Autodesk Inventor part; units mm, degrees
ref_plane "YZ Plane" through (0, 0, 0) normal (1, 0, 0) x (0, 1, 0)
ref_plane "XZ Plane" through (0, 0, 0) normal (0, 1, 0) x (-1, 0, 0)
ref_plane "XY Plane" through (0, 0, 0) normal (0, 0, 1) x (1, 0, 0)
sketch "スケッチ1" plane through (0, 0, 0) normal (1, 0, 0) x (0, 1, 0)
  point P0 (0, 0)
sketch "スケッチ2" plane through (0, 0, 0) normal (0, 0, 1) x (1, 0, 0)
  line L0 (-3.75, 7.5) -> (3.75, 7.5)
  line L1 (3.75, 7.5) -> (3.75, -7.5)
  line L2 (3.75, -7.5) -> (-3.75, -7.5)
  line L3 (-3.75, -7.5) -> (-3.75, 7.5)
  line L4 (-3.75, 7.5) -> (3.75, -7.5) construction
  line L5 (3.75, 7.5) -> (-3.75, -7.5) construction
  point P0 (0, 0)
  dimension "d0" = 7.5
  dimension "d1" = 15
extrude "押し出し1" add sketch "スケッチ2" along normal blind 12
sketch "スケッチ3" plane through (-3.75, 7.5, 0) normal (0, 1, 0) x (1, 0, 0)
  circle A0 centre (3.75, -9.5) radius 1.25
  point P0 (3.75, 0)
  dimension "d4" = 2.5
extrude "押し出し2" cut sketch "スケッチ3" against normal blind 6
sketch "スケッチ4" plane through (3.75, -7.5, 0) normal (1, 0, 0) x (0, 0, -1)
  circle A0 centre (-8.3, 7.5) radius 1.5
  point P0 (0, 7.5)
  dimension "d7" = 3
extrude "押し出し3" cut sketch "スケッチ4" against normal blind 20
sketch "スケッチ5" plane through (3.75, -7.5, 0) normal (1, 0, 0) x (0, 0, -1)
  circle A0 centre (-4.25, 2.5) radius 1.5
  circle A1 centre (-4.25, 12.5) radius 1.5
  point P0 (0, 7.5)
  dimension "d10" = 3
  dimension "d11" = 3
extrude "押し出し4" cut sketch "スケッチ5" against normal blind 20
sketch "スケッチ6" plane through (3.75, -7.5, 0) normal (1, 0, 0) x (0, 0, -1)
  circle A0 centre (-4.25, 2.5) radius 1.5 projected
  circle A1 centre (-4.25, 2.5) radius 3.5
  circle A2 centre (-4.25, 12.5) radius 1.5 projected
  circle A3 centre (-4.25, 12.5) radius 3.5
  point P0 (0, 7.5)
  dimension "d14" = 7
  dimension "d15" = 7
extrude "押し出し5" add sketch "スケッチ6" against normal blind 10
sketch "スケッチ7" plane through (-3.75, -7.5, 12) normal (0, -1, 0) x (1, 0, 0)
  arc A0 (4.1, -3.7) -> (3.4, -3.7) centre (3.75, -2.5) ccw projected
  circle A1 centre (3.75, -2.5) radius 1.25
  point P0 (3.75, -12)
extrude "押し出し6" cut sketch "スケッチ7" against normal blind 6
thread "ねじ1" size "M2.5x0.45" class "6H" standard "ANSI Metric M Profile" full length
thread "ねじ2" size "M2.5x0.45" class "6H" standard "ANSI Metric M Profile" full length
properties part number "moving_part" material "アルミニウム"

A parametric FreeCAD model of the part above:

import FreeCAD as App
import Part
import Sketcher

V = App.Vector

doc = App.newDocument("Part")
body = doc.addObject("PartDesign::Body", "Body")

# Sketch on XY plane
sketch1 = body.newObject("Sketcher::SketchObject", "Sketch")
sketch1.AttachmentSupport = (doc.getObject("XY_Plane"), [""])
sketch1.MapMode = "FlatFace"
sketch1.addGeometry([
    Part.LineSegment(V(4, 8, 0), V(-4, 8, 0)),
    Part.LineSegment(V(-4, 8, 0), V(-4, -8, 0)),
    Part.LineSegment(V(-4, -8, 0), V(4, -8, 0)),
    Part.LineSegment(V(4, -8, 0), V(4, 8, 0)),
], False)
sketch1.addConstraint([
    Sketcher.Constraint("Coincident", 0, 2, 1, 1),
    Sketcher.Constraint("Coincident", 1, 2, 2, 1),
    Sketcher.Constraint("Coincident", 2, 2, 3, 1),
    Sketcher.Constraint("Coincident", 3, 2, 0, 1),
    Sketcher.Constraint("Horizontal", 0),
    Sketcher.Constraint("Vertical", 1),
    Sketcher.Constraint("Horizontal", 2),
    Sketcher.Constraint("Vertical", 3),
    Sketcher.Constraint("Symmetric", 0, 2, 2, 2, -1, 1),
    Sketcher.Constraint("DistanceY", 1, 2, 1, 1, 15.0),
    Sketcher.Constraint("DistanceX", 0, 2, 0, 1, 7.5),
])
pad1 = body.newObject("PartDesign::Pad", "Pad")
pad1.Profile = sketch1
pad1.Length = 12

# Sketch on XZ plane
sketch2 = body.newObject("Sketcher::SketchObject", "Sketch001")
sketch2.AttachmentSupport = (doc.getObject("XZ_Plane"), [""])
sketch2.MapMode = "FlatFace"
sketch2.AttachmentOffset = App.Placement(V(0, 0, -7.5), App.Rotation())
sketch2.addGeometry(Part.Circle(V(0, 9.5, 0), V(0, 0, 1), 1.2), False)
sketch2.addConstraint([
    Sketcher.Constraint("PointOnObject", 0, 3, -2),
    Sketcher.Constraint("Diameter", 0, 2.5),
    Sketcher.Constraint("DistanceY", -1, 1, 0, 3, 9.5),
])
pocket1 = body.newObject("PartDesign::Pocket", "Pocket")
pocket1.Profile = sketch2
pocket1.Length = 6
pocket1.Reversed = True

# Sketch on YZ plane
sketch3 = body.newObject("Sketcher::SketchObject", "Sketch002")
sketch3.AttachmentSupport = (doc.getObject("YZ_Plane"), [""])
sketch3.MapMode = "FlatFace"
sketch3.AttachmentOffset = App.Placement(V(0, 0, 3.75), App.Rotation())
sketch3.addGeometry(Part.Circle(V(0, 8.3, 0), V(0, 0, 1), 1.5), False)
sketch3.addConstraint([
    Sketcher.Constraint("PointOnObject", 0, 3, -2),
    Sketcher.Constraint("Diameter", 0, 3.0),
    Sketcher.Constraint("DistanceY", -1, 1, 0, 3, 8.3),
])
pocket2 = body.newObject("PartDesign::Pocket", "Pocket001")
pocket2.Profile = sketch3
pocket2.Length = 20

# Sketch on YZ plane
sketch4 = body.newObject("Sketcher::SketchObject", "Sketch003")
sketch4.AttachmentSupport = (doc.getObject("YZ_Plane"), [""])
sketch4.MapMode = "FlatFace"
sketch4.AttachmentOffset = App.Placement(V(0, 0, 3.75), App.Rotation())
sketch4.addGeometry([
    Part.Circle(V(-5, 4.2, 0), V(0, 0, 1), 1.5),
    Part.Circle(V(5, 4.2, 0), V(0, 0, 1), 1.5),
], False)
sketch4.addConstraint([
    Sketcher.Constraint("Equal", 0, 1),
    Sketcher.Constraint("Symmetric", 0, 3, 1, 3, -2),
    Sketcher.Constraint("Diameter", 0, 3.0),
    Sketcher.Constraint("DistanceX", 0, 3, -1, 1, 5.0),
    Sketcher.Constraint("DistanceY", -1, 1, 0, 3, 4.25),
])
pocket3 = body.newObject("PartDesign::Pocket", "Pocket002")
pocket3.Profile = sketch4
pocket3.Length = 20

# Sketch on YZ plane
sketch5 = body.newObject("Sketcher::SketchObject", "Sketch004")
sketch5.AttachmentSupport = (doc.getObject("YZ_Plane"), [""])
sketch5.MapMode = "FlatFace"
sketch5.AttachmentOffset = App.Placement(V(0, 0, 3.75), App.Rotation())
sketch5.addGeometry([
    Part.Circle(V(-5, 4.2, 0), V(0, 0, 1), 3.5),
    Part.Circle(V(-5, 4.2, 0), V(0, 0, 1), 1.5),
    Part.Circle(V(5, 4.2, 0), V(0, 0, 1), 3.5),
    Part.Circle(V(5, 4.2, 0), V(0, 0, 1), 1.5),
], False)
sketch5.addConstraint([
    Sketcher.Constraint("Coincident", 1, 3, 0, 3),
    Sketcher.Constraint("Coincident", 3, 3, 2, 3),
    Sketcher.Constraint("Equal", 0, 2),
    Sketcher.Constraint("Equal", 1, 3),
    Sketcher.Constraint("Symmetric", 0, 3, 2, 3, -2),
    Sketcher.Constraint("Diameter", 0, 7.0),
    Sketcher.Constraint("Diameter", 1, 3.0),
    Sketcher.Constraint("DistanceX", 0, 3, -1, 1, 5.0),
    Sketcher.Constraint("DistanceY", -1, 1, 0, 3, 4.25),
])
pad2 = body.newObject("PartDesign::Pad", "Pad001")
pad2.Profile = sketch5
pad2.Length = 10
pad2.Reversed = True

# Sketch on XZ plane
sketch6 = body.newObject("Sketcher::SketchObject", "Sketch005")
sketch6.AttachmentSupport = (doc.getObject("XZ_Plane"), [""])
sketch6.MapMode = "FlatFace"
sketch6.AttachmentOffset = App.Placement(V(0, 0, 7.5), App.Rotation())
sketch6.addGeometry(Part.Circle(V(0, 9.5, 0), V(0, 0, 1), 1.2), False)
sketch6.addConstraint([
    Sketcher.Constraint("PointOnObject", 0, 3, -2),
    Sketcher.Constraint("Diameter", 0, 2.5),
    Sketcher.Constraint("DistanceY", -1, 1, 0, 3, 9.5),
])
pocket4 = body.newObject("PartDesign::Pocket", "Pocket003")
pocket4.Profile = sketch6
pocket4.Length = 6

doc.recompute()
